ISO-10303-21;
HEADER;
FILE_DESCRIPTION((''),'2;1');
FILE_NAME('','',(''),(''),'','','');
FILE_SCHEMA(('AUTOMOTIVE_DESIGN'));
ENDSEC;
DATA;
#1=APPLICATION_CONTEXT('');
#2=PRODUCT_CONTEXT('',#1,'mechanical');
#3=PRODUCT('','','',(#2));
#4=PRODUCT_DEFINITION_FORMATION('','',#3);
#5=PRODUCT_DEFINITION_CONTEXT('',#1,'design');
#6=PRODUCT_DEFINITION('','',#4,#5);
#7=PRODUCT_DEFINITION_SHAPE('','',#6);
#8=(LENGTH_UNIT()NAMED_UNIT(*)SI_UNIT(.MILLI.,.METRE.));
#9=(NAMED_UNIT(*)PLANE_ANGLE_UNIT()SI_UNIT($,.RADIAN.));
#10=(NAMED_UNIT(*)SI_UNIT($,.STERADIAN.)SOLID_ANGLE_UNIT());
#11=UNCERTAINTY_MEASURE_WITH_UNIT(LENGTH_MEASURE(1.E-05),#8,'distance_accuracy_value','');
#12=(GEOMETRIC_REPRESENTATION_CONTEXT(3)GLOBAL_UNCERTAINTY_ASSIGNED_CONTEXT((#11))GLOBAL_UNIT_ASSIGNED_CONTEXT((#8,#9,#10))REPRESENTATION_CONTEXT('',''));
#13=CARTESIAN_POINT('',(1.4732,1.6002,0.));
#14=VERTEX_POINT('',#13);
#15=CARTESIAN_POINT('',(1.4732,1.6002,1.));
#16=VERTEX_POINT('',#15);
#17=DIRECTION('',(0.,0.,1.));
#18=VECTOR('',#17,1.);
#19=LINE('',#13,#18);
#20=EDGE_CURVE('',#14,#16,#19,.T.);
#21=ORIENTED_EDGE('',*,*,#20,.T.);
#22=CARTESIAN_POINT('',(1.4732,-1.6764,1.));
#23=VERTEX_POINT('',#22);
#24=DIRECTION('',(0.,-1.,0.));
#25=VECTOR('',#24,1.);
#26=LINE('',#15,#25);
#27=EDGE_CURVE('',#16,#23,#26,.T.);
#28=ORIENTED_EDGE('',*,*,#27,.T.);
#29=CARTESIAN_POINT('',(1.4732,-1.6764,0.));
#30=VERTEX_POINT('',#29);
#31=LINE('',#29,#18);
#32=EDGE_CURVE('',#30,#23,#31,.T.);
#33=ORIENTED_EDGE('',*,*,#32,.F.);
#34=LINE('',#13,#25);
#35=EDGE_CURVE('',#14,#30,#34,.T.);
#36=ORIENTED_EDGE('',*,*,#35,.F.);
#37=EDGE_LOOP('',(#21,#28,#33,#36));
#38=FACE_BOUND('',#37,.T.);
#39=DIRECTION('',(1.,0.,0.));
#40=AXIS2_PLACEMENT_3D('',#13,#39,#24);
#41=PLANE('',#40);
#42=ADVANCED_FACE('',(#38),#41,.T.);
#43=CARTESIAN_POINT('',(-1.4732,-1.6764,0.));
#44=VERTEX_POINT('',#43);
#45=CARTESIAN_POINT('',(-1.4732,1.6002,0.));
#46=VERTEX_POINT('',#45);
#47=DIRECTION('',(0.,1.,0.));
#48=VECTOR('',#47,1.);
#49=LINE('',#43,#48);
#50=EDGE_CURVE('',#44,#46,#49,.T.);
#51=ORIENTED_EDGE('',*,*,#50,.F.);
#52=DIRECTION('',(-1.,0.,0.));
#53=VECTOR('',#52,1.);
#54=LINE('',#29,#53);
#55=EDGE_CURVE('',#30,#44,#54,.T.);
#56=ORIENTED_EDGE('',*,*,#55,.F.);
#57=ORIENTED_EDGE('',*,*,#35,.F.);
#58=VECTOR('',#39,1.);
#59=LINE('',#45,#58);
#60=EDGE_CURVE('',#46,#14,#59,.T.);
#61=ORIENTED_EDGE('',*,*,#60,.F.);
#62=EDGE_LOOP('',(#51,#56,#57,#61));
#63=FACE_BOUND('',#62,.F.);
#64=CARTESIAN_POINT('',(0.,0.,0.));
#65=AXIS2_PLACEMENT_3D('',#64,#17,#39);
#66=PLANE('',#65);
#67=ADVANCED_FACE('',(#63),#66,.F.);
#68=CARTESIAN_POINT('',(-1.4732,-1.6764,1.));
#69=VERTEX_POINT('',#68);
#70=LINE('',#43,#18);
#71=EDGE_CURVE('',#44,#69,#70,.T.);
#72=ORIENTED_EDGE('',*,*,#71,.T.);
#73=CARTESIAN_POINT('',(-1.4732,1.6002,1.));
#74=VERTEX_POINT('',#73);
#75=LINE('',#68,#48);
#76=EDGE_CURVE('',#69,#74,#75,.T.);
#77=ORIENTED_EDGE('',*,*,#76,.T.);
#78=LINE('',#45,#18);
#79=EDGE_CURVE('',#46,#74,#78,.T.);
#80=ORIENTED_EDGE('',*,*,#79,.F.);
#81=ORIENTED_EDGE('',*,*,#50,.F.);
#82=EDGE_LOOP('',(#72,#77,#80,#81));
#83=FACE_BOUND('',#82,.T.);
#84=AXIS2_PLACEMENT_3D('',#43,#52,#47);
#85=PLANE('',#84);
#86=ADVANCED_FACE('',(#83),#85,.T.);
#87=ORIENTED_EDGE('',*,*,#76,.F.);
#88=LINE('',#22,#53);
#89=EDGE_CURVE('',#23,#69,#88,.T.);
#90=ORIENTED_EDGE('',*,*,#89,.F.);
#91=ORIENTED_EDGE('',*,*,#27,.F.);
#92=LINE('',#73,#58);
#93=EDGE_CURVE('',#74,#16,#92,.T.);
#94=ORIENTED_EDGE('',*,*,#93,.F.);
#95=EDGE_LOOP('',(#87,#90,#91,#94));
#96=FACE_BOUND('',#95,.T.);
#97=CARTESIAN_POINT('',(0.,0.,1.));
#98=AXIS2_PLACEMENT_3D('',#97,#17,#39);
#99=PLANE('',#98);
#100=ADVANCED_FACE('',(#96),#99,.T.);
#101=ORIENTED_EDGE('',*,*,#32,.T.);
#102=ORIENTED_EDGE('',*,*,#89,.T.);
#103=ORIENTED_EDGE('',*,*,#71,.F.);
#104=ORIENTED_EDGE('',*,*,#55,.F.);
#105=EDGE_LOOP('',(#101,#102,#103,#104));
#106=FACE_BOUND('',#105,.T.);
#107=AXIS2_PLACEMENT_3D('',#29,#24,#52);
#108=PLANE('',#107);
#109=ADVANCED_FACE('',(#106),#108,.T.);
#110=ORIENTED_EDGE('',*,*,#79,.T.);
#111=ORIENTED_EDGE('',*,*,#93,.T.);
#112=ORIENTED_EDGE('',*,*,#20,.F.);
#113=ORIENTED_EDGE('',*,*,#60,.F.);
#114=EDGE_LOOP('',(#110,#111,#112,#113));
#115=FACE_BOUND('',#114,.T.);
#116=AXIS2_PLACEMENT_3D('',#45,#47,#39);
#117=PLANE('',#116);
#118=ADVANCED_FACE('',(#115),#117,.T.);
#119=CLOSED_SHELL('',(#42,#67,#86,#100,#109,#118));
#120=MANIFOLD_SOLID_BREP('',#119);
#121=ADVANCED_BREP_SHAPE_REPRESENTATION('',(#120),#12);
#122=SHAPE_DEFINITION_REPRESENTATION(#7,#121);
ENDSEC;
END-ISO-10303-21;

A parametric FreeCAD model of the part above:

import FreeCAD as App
import Part
import Sketcher
from FreeCAD import Vector
Q = App.Units.Quantity


def add_polygon(sketch, points):
    """Adds a closed chain of lines whose ends are joined by coincident constraints."""
    first, n = sketch.GeometryCount, len(points)
    for a, b in zip(points, points[1:] + points[:1]):
        sketch.addGeometry(Part.LineSegment(App.Vector(*a, 0), App.Vector(*b, 0)), False)
    for i in range(n):
        sketch.addConstraint(Sketcher.Constraint("Coincident", first + i, 2, first + (i + 1) % n, 1))

doc = App.newDocument("Part")
body = doc.addObject("PartDesign::Body", "Body")

sketch1 = body.newObject("Sketcher::SketchObject", "Sketch")
sketch1.AttachmentSupport = (doc.getObject("XY_Plane"), [""])
sketch1.MapMode = "FlatFace"
add_polygon(sketch1, [(1.5, 1.6), (-1.5, 1.6), (-1.5, -1.7), (1.5, -1.7)])
sketch1.addConstraint([
    Sketcher.Constraint("Horizontal", 0),
    Sketcher.Constraint("Vertical", 1),
    Sketcher.Constraint("Horizontal", 2),
    Sketcher.Constraint("Vertical", 3),
    Sketcher.Constraint("DistanceX", 0, 2, 0, 1, Q("0.116 in")),
    Sketcher.Constraint("DistanceY", 1, 2, 1, 1, Q("0.129 in")),
    Sketcher.Constraint("DistanceX", 0, 2, -1, 1, Q("0.058 in")),
    Sketcher.Constraint("DistanceY", -1, 1, 0, 2, Q("0.063 in")),
])
pad1 = body.newObject("PartDesign::Pad", "Pad")
pad1.Profile = sketch1
pad1.Length = 1

doc.recompute()
